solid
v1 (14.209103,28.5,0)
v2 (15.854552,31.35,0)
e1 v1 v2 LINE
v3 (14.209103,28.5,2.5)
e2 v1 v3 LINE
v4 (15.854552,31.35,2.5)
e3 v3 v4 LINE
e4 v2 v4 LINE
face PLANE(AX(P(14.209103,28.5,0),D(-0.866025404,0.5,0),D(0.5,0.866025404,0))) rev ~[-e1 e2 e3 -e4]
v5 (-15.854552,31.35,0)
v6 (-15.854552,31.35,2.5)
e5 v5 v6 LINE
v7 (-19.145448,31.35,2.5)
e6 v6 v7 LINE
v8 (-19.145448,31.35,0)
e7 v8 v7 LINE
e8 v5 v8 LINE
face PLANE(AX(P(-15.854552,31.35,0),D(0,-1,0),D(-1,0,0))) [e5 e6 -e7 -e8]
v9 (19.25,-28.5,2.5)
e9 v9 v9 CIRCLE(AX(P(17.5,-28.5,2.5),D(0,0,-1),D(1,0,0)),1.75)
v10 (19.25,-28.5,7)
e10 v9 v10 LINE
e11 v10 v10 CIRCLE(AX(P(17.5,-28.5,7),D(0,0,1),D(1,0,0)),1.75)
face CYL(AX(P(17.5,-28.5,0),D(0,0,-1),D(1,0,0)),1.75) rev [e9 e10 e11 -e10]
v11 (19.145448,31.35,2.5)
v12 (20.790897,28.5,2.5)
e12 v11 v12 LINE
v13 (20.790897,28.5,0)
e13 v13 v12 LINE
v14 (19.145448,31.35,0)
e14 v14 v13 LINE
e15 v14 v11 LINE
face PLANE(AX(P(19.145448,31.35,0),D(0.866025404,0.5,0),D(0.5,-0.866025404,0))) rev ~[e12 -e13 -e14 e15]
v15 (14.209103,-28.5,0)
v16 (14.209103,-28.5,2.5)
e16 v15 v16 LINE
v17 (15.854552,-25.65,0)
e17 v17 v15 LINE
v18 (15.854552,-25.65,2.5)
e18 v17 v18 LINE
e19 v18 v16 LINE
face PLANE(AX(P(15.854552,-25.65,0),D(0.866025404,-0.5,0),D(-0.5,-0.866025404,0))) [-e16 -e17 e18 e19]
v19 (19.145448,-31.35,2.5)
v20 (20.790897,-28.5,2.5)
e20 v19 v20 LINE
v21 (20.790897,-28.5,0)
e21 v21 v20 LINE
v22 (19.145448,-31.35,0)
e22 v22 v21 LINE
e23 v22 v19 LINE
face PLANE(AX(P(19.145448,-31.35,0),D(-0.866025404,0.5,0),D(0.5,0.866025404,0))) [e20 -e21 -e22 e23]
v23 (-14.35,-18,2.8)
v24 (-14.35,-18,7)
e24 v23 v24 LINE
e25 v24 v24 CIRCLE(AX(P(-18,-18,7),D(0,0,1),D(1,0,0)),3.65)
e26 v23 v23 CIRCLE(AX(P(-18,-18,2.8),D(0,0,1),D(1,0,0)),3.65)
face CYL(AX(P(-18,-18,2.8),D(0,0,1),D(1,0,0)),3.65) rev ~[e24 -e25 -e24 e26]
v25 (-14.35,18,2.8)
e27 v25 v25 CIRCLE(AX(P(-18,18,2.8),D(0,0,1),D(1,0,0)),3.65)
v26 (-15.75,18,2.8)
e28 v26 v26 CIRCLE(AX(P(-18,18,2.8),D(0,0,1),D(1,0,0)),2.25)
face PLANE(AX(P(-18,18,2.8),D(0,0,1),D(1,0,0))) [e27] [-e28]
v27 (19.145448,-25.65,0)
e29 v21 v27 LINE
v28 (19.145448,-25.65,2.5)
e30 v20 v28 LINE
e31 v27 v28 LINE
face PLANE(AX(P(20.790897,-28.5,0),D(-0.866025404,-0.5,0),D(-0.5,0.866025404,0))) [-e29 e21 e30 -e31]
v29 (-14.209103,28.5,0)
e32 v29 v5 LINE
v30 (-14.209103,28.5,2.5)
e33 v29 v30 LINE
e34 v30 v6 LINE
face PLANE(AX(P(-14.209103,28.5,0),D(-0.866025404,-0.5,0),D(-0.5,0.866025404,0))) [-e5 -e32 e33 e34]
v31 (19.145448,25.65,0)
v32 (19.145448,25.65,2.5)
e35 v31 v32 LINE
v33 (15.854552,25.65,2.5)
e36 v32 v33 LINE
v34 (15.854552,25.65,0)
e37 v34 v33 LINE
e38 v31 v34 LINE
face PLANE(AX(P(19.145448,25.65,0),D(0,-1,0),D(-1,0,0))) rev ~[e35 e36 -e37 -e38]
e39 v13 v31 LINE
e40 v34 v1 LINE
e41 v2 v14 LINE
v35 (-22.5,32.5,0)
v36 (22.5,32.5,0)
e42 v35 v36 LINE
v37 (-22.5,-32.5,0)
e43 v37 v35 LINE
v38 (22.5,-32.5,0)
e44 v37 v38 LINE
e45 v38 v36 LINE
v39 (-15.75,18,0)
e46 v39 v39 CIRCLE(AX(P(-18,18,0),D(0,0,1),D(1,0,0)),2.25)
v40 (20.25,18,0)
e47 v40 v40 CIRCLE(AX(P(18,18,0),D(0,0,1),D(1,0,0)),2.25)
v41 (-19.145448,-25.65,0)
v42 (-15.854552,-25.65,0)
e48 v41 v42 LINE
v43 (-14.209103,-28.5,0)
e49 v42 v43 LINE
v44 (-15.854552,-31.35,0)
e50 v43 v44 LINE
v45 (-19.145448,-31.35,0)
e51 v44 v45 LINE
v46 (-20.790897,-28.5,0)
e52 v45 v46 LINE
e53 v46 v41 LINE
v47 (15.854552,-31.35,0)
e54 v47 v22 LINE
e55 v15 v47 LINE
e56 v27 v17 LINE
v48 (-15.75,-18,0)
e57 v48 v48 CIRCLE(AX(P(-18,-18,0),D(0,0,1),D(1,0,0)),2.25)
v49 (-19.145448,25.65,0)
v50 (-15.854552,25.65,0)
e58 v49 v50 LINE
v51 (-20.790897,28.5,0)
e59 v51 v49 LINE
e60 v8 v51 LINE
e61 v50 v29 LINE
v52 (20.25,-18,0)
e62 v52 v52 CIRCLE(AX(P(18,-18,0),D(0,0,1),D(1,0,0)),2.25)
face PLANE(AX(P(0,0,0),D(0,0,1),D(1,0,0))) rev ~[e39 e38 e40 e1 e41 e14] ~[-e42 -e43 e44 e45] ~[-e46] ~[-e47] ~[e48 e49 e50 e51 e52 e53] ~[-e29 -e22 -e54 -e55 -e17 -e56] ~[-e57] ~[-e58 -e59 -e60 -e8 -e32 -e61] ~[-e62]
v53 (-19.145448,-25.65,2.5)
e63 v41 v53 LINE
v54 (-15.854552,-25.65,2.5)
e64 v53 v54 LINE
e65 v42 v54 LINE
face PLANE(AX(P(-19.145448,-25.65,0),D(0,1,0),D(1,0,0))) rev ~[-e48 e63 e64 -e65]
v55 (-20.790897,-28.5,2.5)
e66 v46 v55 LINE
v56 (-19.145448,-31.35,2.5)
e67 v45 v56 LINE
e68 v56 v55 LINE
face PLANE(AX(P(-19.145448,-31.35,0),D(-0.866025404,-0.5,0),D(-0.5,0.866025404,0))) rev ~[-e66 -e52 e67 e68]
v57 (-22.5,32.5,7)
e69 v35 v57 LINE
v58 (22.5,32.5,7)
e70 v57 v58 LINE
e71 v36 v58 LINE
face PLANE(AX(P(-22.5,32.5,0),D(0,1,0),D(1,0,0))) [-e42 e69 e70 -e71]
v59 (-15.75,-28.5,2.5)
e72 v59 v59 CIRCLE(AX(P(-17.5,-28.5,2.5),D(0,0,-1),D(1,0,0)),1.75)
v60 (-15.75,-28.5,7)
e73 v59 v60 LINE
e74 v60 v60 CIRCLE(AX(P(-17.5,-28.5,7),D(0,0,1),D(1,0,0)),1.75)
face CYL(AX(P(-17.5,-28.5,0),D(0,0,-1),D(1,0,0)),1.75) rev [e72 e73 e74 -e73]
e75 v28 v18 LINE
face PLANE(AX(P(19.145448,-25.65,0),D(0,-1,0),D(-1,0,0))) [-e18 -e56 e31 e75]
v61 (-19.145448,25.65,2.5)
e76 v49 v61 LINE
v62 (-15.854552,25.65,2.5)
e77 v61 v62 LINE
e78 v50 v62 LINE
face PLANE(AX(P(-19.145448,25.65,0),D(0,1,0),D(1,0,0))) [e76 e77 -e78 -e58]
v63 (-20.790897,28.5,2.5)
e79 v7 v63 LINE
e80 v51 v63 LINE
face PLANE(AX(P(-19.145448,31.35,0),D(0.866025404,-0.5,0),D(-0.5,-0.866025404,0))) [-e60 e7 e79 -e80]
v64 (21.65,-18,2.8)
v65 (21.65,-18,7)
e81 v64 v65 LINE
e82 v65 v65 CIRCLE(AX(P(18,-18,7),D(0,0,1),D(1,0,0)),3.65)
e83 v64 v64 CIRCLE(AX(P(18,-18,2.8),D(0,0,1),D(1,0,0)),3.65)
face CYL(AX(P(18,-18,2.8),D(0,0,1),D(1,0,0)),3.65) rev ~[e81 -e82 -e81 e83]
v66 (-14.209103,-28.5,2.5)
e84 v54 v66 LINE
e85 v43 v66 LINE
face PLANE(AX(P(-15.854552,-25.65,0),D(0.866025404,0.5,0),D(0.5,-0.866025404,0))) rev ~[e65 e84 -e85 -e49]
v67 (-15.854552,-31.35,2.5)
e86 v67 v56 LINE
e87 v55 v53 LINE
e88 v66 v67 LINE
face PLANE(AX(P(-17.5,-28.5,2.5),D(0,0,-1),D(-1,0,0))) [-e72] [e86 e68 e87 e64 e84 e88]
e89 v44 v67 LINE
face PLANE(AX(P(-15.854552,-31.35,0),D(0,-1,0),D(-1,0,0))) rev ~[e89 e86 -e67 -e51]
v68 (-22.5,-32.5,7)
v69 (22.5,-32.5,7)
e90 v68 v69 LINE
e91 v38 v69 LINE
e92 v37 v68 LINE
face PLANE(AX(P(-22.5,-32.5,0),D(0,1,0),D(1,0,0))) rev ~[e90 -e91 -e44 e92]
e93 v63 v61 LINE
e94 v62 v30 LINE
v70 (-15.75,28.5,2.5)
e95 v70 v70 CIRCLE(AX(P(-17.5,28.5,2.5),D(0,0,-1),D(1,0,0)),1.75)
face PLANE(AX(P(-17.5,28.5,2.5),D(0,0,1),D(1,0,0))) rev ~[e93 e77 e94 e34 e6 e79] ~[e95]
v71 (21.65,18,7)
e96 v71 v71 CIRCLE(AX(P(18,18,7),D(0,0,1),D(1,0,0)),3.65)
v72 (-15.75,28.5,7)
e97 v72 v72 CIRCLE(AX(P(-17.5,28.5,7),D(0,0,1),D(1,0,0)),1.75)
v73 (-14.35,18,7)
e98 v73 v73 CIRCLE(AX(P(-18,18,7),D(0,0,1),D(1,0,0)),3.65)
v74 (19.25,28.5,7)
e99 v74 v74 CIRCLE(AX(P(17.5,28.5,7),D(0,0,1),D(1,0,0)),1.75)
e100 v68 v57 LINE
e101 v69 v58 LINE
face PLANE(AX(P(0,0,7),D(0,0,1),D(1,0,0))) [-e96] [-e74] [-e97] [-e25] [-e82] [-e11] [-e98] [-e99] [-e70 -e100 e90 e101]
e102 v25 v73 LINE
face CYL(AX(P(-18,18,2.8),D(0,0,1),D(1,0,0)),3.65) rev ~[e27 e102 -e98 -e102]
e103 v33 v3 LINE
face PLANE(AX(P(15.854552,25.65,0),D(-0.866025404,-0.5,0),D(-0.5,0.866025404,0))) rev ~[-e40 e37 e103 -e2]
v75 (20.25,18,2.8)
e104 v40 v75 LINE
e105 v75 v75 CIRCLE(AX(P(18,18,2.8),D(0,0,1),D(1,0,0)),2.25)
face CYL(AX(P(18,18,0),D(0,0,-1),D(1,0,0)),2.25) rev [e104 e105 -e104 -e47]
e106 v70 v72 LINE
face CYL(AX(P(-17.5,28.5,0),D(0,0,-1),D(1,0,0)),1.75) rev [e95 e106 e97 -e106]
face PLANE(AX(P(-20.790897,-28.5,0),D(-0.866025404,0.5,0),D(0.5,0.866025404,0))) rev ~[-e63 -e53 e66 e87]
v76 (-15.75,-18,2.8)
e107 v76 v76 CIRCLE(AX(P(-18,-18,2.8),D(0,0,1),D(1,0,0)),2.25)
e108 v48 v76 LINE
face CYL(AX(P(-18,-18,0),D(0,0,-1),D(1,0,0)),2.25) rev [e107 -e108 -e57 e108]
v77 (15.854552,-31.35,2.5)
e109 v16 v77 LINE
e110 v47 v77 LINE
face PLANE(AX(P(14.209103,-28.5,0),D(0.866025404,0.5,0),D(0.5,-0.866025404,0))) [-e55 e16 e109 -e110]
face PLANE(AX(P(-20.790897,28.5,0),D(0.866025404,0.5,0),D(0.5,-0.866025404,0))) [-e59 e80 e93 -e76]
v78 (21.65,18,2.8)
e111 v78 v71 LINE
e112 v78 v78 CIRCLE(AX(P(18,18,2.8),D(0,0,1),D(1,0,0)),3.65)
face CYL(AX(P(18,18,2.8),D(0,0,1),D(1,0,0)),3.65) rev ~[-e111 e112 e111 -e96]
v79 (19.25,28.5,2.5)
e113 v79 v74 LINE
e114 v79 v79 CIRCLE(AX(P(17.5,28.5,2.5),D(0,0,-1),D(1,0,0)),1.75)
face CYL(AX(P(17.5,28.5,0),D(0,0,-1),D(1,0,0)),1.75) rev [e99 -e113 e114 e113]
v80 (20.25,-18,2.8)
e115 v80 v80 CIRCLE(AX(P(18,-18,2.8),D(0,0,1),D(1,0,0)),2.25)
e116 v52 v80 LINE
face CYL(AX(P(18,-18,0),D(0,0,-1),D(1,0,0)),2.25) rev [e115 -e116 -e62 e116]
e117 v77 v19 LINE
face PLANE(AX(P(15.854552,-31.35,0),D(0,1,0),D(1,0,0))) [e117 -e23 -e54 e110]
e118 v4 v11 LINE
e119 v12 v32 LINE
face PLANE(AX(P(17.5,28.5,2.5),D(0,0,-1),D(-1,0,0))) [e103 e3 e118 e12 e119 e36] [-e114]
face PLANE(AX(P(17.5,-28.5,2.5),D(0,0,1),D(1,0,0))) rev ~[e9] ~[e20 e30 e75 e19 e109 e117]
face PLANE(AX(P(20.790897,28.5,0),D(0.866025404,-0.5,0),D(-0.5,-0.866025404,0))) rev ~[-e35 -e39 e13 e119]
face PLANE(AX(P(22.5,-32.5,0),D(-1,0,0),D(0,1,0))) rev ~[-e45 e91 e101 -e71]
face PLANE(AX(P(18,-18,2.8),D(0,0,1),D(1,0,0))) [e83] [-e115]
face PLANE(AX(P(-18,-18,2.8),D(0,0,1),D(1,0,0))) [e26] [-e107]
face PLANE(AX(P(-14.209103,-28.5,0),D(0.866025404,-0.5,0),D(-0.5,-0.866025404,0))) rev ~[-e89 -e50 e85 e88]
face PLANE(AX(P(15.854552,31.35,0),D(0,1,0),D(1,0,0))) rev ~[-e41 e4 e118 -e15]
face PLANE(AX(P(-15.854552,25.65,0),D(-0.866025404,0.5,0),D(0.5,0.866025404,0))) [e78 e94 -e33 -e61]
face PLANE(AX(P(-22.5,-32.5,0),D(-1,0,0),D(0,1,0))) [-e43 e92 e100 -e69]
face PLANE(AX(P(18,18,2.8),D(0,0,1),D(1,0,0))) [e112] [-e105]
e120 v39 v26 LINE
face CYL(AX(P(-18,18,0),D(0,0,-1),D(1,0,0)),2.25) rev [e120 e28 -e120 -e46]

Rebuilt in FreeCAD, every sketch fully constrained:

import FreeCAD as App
import Part
import Sketcher

V = App.Vector
Q = App.Units.Quantity

doc = App.newDocument("Part")
params = doc.addObject("Spreadsheet::Sheet", "Params")
for row, (alias, value) in enumerate([
    ("sketch1_diameter", "3.5 mm"),
    ("sketch1_diameter2", "4.5 mm"),
    ("sketch1_width", "45 mm"),
    ("sketch1_height", "65 mm"),
    ("pad1_length", "7 mm"),
    ("sketch2_diameter", "4.5 mm"),
    ("hole_diameter", "4.5 mm"),
    ("hole_cbore_diameter", "7.3 mm"),
    ("hole_cbore_depth", "4.2 mm"),
    ("pocket1_length", "2.5 mm"),
], start=1):
    params.set(f"A{row}", alias)
    params.set(f"B{row}", "=" + value)
    params.setAlias(f"B{row}", alias)

body = doc.addObject("PartDesign::Body", "Body")

sketch1 = body.newObject("Sketcher::SketchObject", "Sketch")
sketch1.AttachmentSupport = (doc.getObject("XY_Plane"), [""])
sketch1.MapMode = "FlatFace"
sketch1.addGeometry([
    Part.LineSegment(V(-22.5, 32.5, 0), V(-22.5, -32.5, 0)),
    Part.LineSegment(V(-22.5, -32.5, 0), V(22.5, -32.5, 0)),
    Part.LineSegment(V(22.5, -32.5, 0), V(22.5, 32.5, 0)),
    Part.LineSegment(V(22.5, 32.5, 0), V(-22.5, 32.5, 0)),
    Part.Circle(V(-17.5, -28.5, 0), V(0, 0, 1), 1.75),
    Part.Circle(V(-18, -18, 0), V(0, 0, 1), 2.25),
    Part.Circle(V(17.5, -28.5, 0), V(0, 0, 1), 1.75),
    Part.Circle(V(18, -18, 0), V(0, 0, 1), 2.25),
    Part.Circle(V(-18, 18, 0), V(0, 0, 1), 2.25),
    Part.Circle(V(-17.5, 28.5, 0), V(0, 0, 1), 1.75),
    Part.Circle(V(18, 18, 0), V(0, 0, 1), 2.25),
    Part.Circle(V(17.5, 28.5, 0), V(0, 0, 1), 1.75),
], False)
sketch1.addConstraint([
    Sketcher.Constraint("Coincident", 0, 2, 1, 1),
    Sketcher.Constraint("Coincident", 1, 2, 2, 1),
    Sketcher.Constraint("Coincident", 2, 2, 3, 1),
    Sketcher.Constraint("Coincident", 3, 2, 0, 1),
    Sketcher.Constraint("Vertical", 0),
    Sketcher.Constraint("Horizontal", 1),
    Sketcher.Constraint("Vertical", 2),
    Sketcher.Constraint("Horizontal", 3),
    Sketcher.Constraint("Equal", 4, 6),
    Sketcher.Constraint("Equal", 5, 7),
    Sketcher.Constraint("Equal", 7, 8),
    Sketcher.Constraint("Equal", 6, 9),
    Sketcher.Constraint("Equal", 8, 10),
    Sketcher.Constraint("Equal", 9, 11),
    Sketcher.Constraint("Symmetric", 7, 3, 8, 3, -1, 1),
    Sketcher.Constraint("Symmetric", 6, 3, 9, 3, -1, 1),
    Sketcher.Constraint("Symmetric", 5, 3, 10, 3, -1, 1),
    Sketcher.Constraint("Symmetric", 4, 3, 11, 3, -1, 1),
    Sketcher.Constraint("Symmetric", 0, 2, 2, 2, -1, 1),
    Sketcher.Constraint("Symmetric", 4, 3, 6, 3, -2),
    Sketcher.Constraint("Symmetric", 5, 3, 7, 3, -2),
    Sketcher.Constraint("Diameter", 4, 3.5),
    Sketcher.Constraint("Diameter", 5, 4.5),
    Sketcher.Constraint("DistanceX", 1, 1, 1, 2, 45.0),
    Sketcher.Constraint("DistanceY", 0, 2, 0, 1, 65.0),
    Sketcher.Constraint("DistanceX", 5, 3, -1, 1, 18.0),
    Sketcher.Constraint("DistanceY", 5, 3, -1, 1, 18.0),
    Sketcher.Constraint("DistanceX", 4, 3, 6, 3, 35.0),
    Sketcher.Constraint("DistanceY", 4, 3, 9, 3, 57.0),
])
sketch1.setExpression("Constraints[21]", "Params.sketch1_diameter")
sketch1.setExpression("Constraints[22]", "Params.sketch1_diameter2")
sketch1.setExpression("Constraints[23]", "Params.sketch1_width")
sketch1.setExpression("Constraints[24]", "Params.sketch1_height")
pad1 = body.newObject("PartDesign::Pad", "Pad")
pad1.Profile = sketch1
pad1.setExpression("Length", "Params.pad1_length")

sketch2 = body.newObject("Sketcher::SketchObject", "Sketch001")
sketch2.AttachmentSupport = (doc.getObject("XY_Plane"), [""])
sketch2.MapMode = "FlatFace"
sketch2.AttachmentOffset = App.Placement(V(0, 0, 7), App.Rotation())
sketch2.addGeometry([
    Part.Circle(V(-18, 18, 0), V(0, 0, 1), 2.25),
    Part.Circle(V(18, 18, 0), V(0, 0, 1), 2.25),
    Part.Circle(V(18, -18, 0), V(0, 0, 1), 2.25),
    Part.Circle(V(-18, -18, 0), V(0, 0, 1), 2.25),
], False)
sketch2.addConstraint([
    Sketcher.Constraint("Equal", 0, 1),
    Sketcher.Constraint("Equal", 1, 2),
    Sketcher.Constraint("Equal", 2, 3),
    Sketcher.Constraint("Symmetric", 0, 3, 2, 3, -1, 1),
    Sketcher.Constraint("Symmetric", 1, 3, 3, 3, -1, 1),
    Sketcher.Constraint("Symmetric", 0, 3, 1, 3, -2),
    Sketcher.Constraint("Diameter", 0, 4.5),
    Sketcher.Constraint("DistanceX", 0, 3, -1, 1, 18.0),
    Sketcher.Constraint("DistanceY", -1, 1, 0, 3, 18.0),
])
sketch2.setExpression("Constraints[6]", "Params.sketch2_diameter")
doc.recompute()
hole = body.newObject("PartDesign::Hole", "Hole")
hole.Profile = sketch2
hole.ThreadType = "None"
hole.setExpression("Diameter", "Params.hole_diameter")
hole.DepthType = "ThroughAll"
hole.HoleCutType = "Counterbore"
hole.setExpression("HoleCutDiameter", "Params.hole_cbore_diameter")
hole.setExpression("HoleCutDepth", "Params.hole_cbore_depth")

sketch3 = body.newObject("Sketcher::SketchObject", "Sketch002")
sketch3.AttachmentSupport = (doc.getObject("XY_Plane"), [""])
sketch3.MapMode = "FlatFace"
sketch3.addGeometry([
    Part.LineSegment(V(14.209103, 28.5, 0), V(15.854552, 31.35, 0)),
    Part.LineSegment(V(15.854552, 31.35, 0), V(19.145448, 31.35, 0)),
    Part.LineSegment(V(19.145448, 31.35, 0), V(20.790897, 28.5, 0)),
    Part.LineSegment(V(20.790897, 28.5, 0), V(19.145448, 25.65, 0)),
    Part.LineSegment(V(19.145448, 25.65, 0), V(15.854552, 25.65, 0)),
    Part.LineSegment(V(15.854552, 25.65, 0), V(14.209103, 28.5, 0)),
    Part.LineSegment(V(-14.209103, 28.5, 0), V(-15.854552, 25.65, 0)),
    Part.LineSegment(V(-15.854552, 25.65, 0), V(-19.145448, 25.65, 0)),
    Part.LineSegment(V(-19.145448, 25.65, 0), V(-20.790897, 28.5, 0)),
    Part.LineSegment(V(-20.790897, 28.5, 0), V(-19.145448, 31.35, 0)),
    Part.LineSegment(V(-19.145448, 31.35, 0), V(-15.854552, 31.35, 0)),
    Part.LineSegment(V(-15.854552, 31.35, 0), V(-14.209103, 28.5, 0)),
    Part.LineSegment(V(-14.209103, -28.5, 0), V(-15.854552, -31.35, 0)),
    Part.LineSegment(V(-15.854552, -31.35, 0), V(-19.145448, -31.35, 0)),
    Part.LineSegment(V(-19.145448, -31.35, 0), V(-20.790897, -28.5, 0)),
    Part.LineSegment(V(-20.790897, -28.5, 0), V(-19.145448, -25.65, 0)),
    Part.LineSegment(V(-19.145448, -25.65, 0), V(-15.854552, -25.65, 0)),
    Part.LineSegment(V(-15.854552, -25.65, 0), V(-14.209103, -28.5, 0)),
    Part.LineSegment(V(14.209103, -28.5, 0), V(15.854552, -25.65, 0)),
    Part.LineSegment(V(15.854552, -25.65, 0), V(19.145448, -25.65, 0)),
    Part.LineSegment(V(19.145448, -25.65, 0), V(20.790897, -28.5, 0)),
    Part.LineSegment(V(20.790897, -28.5, 0), V(19.145448, -31.35, 0)),
    Part.LineSegment(V(19.145448, -31.35, 0), V(15.854552, -31.35, 0)),
    Part.LineSegment(V(15.854552, -31.35, 0), V(14.209103, -28.5, 0)),
], False)
sketch3.addConstraint([
    Sketcher.Constraint("Coincident", 0, 2, 1, 1),
    Sketcher.Constraint("Coincident", 1, 2, 2, 1),
    Sketcher.Constraint("Coincident", 2, 2, 3, 1),
    Sketcher.Constraint("Coincident", 3, 2, 4, 1),
    Sketcher.Constraint("Coincident", 4, 2, 5, 1),
    Sketcher.Constraint("Coincident", 5, 2, 0, 1),
    Sketcher.Constraint("Coincident", 6, 2, 7, 1),
    Sketcher.Constraint("Coincident", 7, 2, 8, 1),
    Sketcher.Constraint("Coincident", 8, 2, 9, 1),
    Sketcher.Constraint("Coincident", 9, 2, 10, 1),
    Sketcher.Constraint("Coincident", 10, 2, 11, 1),
    Sketcher.Constraint("Coincident", 11, 2, 6, 1),
    Sketcher.Constraint("Coincident", 12, 2, 13, 1),
    Sketcher.Constraint("Coincident", 13, 2, 14, 1),
    Sketcher.Constraint("Coincident", 14, 2, 15, 1),
    Sketcher.Constraint("Coincident", 15, 2, 16, 1),
    Sketcher.Constraint("Coincident", 16, 2, 17, 1),
    Sketcher.Constraint("Coincident", 17, 2, 12, 1),
    Sketcher.Constraint("Coincident", 18, 2, 19, 1),
    Sketcher.Constraint("Coincident", 19, 2, 20, 1),
    Sketcher.Constraint("Coincident", 20, 2, 21, 1),
    Sketcher.Constraint("Coincident", 21, 2, 22, 1),
    Sketcher.Constraint("Coincident", 22, 2, 23, 1),
    Sketcher.Constraint("Coincident", 23, 2, 18, 1),
    Sketcher.Constraint("Horizontal", 1),
    Sketcher.Constraint("Horizontal", 4),
    Sketcher.Constraint("Horizontal", 7),
    Sketcher.Constraint("Horizontal", 10),
    Sketcher.Constraint("Horizontal", 13),
    Sketcher.Constraint("Horizontal", 16),
    Sketcher.Constraint("Horizontal", 19),
    Sketcher.Constraint("Horizontal", 22),
    Sketcher.Constraint("Symmetric", 0, 2, 12, 2, -1, 1),
    Sketcher.Constraint("Symmetric", 2, 2, 14, 2, -1, 1),
    Sketcher.Constraint("Symmetric", 3, 2, 15, 2, -1, 1),
    Sketcher.Constraint("Symmetric", 5, 2, 17, 2, -1, 1),
    Sketcher.Constraint("Symmetric", 6, 2, 18, 2, -1, 1),
    Sketcher.Constraint("Symmetric", 8, 2, 20, 2, -1, 1),
    Sketcher.Constraint("Symmetric", 9, 2, 21, 2, -1, 1),
    Sketcher.Constraint("Symmetric", 11, 2, 23, 2, -1, 1),
    Sketcher.Constraint("Symmetric", 4, 2, 6, 2, -2),
    Sketcher.Constraint("Symmetric", 2, 2, 8, 2, -2),
    Sketcher.Constraint("Symmetric", 1, 2, 9, 2, -2),
    Sketcher.Constraint("Symmetric", 5, 2, 11, 2, -2),
    Sketcher.Constraint("Parallel", 0, 3),
    Sketcher.Constraint("Parallel", 2, 5),
    Sketcher.Constraint("Parallel", 3, 6),
    Sketcher.Constraint("Parallel", 5, 8),
    Sketcher.Constraint("Parallel", 8, 11),
    Sketcher.Constraint("Parallel", 11, 14),
    Sketcher.Constraint("Parallel", 14, 17),
    Sketcher.Constraint("Parallel", 17, 20),
    Sketcher.Constraint("Parallel", 20, 23),
    Sketcher.Constraint("Horizontal", 2, 2, 5, 2),
    Sketcher.Constraint("Vertical", 1, 2, 3, 2),
    Sketcher.Constraint("Angle", 0, Q("60 deg")),
    Sketcher.Constraint("DistanceX", 6, 2, 3, 2, 35.0),
    Sketcher.Constraint("DistanceY", 12, 2, 6, 2, 57.0),
    Sketcher.Constraint("DistanceY", 3, 2, 1, 2, 5.7),
    Sketcher.Constraint("DistanceX", 1, 1, 1, 2, 3.290897),
])
pocket1 = body.newObject("PartDesign::Pocket", "Pocket")
pocket1.Profile = sketch3
pocket1.setExpression("Length", "Params.pocket1_length")
pocket1.Reversed = True

doc.recompute()
